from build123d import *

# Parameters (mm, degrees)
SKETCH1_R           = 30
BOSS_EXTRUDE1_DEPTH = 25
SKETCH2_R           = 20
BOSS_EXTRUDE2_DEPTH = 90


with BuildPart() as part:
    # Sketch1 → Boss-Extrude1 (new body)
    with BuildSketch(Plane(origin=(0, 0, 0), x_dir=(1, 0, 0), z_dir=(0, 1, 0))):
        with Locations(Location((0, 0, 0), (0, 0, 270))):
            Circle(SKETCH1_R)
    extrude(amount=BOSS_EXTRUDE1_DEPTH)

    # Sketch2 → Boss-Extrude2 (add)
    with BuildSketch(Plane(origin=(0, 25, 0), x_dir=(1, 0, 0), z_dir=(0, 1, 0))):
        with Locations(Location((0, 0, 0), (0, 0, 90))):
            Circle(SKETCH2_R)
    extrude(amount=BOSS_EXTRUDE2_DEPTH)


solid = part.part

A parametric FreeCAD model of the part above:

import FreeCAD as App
import Part
import Sketcher
from FreeCAD import Vector
Q = App.Units.Quantity

doc = App.newDocument("Part")
body = doc.addObject("PartDesign::Body", "Body")

sketch1 = body.newObject("Sketcher::SketchObject", "Sketch")
sketch1.AttachmentSupport = (doc.getObject("XZ_Plane"), [""])
sketch1.MapMode = "FlatFace"
sketch1.addGeometry(Part.Circle(Vector(0, 0, 0), Vector(0, 0, 1), 30), False)
sketch1.addConstraint([
    Sketcher.Constraint("Coincident", 0, 3, -1, 1),
    Sketcher.Constraint("Diameter", 0, Q("60 mm")),
])
pad1 = body.newObject("PartDesign::Pad", "Pad")
pad1.Profile = sketch1
pad1.Length = 25
pad1.Reversed = True

sketch2 = body.newObject("Sketcher::SketchObject", "Sketch001")
sketch2.AttachmentSupport = (doc.getObject("XZ_Plane"), [""])
sketch2.MapMode = "FlatFace"
sketch2.AttachmentOffset = App.Placement(Vector(0, 0, -25), App.Rotation())
sketch2.addGeometry(Part.Circle(Vector(0, 0, 0), Vector(0, 0, 1), 20), False)
sketch2.addConstraint([
    Sketcher.Constraint("Coincident", 0, 3, -1, 1),
    Sketcher.Constraint("Diameter", 0, Q("40 mm")),
])
pad2 = body.newObject("PartDesign::Pad", "Pad001")
pad2.Profile = sketch2
pad2.Length = 90
pad2.Reversed = True

doc.recompute()
